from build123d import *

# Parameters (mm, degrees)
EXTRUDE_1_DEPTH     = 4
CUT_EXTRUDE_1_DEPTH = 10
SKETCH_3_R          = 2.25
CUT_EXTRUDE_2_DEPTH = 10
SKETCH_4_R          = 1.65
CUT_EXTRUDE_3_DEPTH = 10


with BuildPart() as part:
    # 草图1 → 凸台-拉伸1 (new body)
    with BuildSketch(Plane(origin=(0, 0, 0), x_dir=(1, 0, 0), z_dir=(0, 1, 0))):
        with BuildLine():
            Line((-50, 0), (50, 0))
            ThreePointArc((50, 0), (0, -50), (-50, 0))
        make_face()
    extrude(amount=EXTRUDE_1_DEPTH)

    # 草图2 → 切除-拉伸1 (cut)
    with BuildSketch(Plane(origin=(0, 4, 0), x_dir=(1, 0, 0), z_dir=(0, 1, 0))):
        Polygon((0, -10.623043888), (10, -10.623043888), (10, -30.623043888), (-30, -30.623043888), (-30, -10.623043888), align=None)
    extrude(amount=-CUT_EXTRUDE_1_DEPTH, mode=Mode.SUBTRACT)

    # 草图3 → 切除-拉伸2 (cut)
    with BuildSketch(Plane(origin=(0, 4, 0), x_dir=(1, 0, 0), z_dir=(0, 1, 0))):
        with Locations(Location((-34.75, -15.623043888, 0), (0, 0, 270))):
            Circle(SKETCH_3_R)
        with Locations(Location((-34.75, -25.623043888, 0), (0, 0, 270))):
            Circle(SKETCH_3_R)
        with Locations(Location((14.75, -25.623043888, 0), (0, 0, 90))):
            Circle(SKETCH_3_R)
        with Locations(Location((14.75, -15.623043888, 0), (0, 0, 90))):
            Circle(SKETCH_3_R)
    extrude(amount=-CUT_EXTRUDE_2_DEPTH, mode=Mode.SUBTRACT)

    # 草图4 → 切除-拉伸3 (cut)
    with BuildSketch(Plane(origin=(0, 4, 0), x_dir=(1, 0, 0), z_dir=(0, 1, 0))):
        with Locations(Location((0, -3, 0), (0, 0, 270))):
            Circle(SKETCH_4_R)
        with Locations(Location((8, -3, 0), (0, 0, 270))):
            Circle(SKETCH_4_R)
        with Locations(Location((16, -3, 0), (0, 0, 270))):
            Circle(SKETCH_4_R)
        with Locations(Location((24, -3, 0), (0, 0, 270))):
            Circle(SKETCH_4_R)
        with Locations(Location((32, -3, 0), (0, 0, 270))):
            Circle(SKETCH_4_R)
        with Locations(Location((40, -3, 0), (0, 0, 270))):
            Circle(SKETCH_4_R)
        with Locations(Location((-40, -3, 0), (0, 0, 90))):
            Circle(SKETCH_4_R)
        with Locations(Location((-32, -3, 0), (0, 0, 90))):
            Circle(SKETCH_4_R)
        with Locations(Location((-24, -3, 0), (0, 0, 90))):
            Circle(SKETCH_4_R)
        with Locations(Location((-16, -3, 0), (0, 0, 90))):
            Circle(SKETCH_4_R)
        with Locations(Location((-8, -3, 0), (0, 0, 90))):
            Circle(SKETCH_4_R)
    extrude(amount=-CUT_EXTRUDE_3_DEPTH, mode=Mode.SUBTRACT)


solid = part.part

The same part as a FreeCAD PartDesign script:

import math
import FreeCAD as App
import Part
import Sketcher
from FreeCAD import Vector


def add_polygon(sketch, points):
    """Adds a closed chain of lines whose ends are joined by coincident constraints."""
    first, n = sketch.GeometryCount, len(points)
    for a, b in zip(points, points[1:] + points[:1]):
        sketch.addGeometry(Part.LineSegment(App.Vector(*a, 0), App.Vector(*b, 0)), False)
    for i in range(n):
        sketch.addConstraint(Sketcher.Constraint("Coincident", first + i, 2, first + (i + 1) % n, 1))

doc = App.newDocument("Part")
body = doc.addObject("PartDesign::Body", "Body")

# Sketch on XZ plane
sketch1 = body.newObject("Sketcher::SketchObject", "Sketch")
sketch1.AttachmentSupport = (doc.getObject("XZ_Plane"), [""])
sketch1.MapMode = "FlatFace"
sketch1.addGeometry([
    Part.LineSegment(Vector(50, 0, 0), Vector(-50, 0, 0)),
    Part.ArcOfCircle(Part.Circle(Vector(0, 0, 0), Vector(0, 0, 1), 50), math.radians(0), math.radians(180)),
], False)
sketch1.addConstraint([
    Sketcher.Constraint("Coincident", 0, 1, 1, 1),
    Sketcher.Constraint("Coincident", 1, 2, 0, 2),
    Sketcher.Constraint("Horizontal", 0),
    Sketcher.Constraint("Coincident", 1, 3, -1, 1),
    Sketcher.Constraint("PointOnObject", 0, 1, -1),
    Sketcher.Constraint("Radius", 1, 50.0),
])
pad1 = body.newObject("PartDesign::Pad", "Pad")
pad1.Profile = sketch1
pad1.Length = 4
pad1.Reversed = True

# Sketch on XZ plane
sketch2 = body.newObject("Sketcher::SketchObject", "Sketch001")
sketch2.AttachmentSupport = (doc.getObject("XZ_Plane"), [""])
sketch2.MapMode = "FlatFace"
sketch2.AttachmentOffset = App.Placement(Vector(0, 0, -4), App.Rotation())
add_polygon(sketch2, [(10, 11), (-30, 11), (-30, 31), (10, 31)])  # lines 0-3
sketch2.addConstraint([
    Sketcher.Constraint("Horizontal", 0),
    Sketcher.Constraint("Vertical", 1),
    Sketcher.Constraint("Horizontal", 2),
    Sketcher.Constraint("Vertical", 3),
    Sketcher.Constraint("DistanceX", 0, 2, 0, 1, 40.0),
    Sketcher.Constraint("DistanceY", 1, 1, 1, 2, 20.0),
    Sketcher.Constraint("DistanceX", 0, 2, -1, 1, 30.0),
    Sketcher.Constraint("DistanceY", -1, 1, 0, 2, 10.623044),
])
pocket1 = body.newObject("PartDesign::Pocket", "Pocket")
pocket1.Profile = sketch2
pocket1.Length = 10
pocket1.Reversed = True

# Sketch on XZ plane
sketch3 = body.newObject("Sketcher::SketchObject", "Sketch002")
sketch3.AttachmentSupport = (doc.getObject("XZ_Plane"), [""])
sketch3.MapMode = "FlatFace"
sketch3.AttachmentOffset = App.Placement(Vector(0, 0, -4), App.Rotation())
sketch3.addGeometry([
    Part.Circle(Vector(-34.8, 15.6, 0), Vector(0, 0, 1), 2.2),
    Part.Circle(Vector(-34.8, 25.6, 0), Vector(0, 0, 1), 2.2),
    Part.Circle(Vector(14.8, 25.6, 0), Vector(0, 0, 1), 2.2),
    Part.Circle(Vector(14.8, 15.6, 0), Vector(0, 0, 1), 2.2),
], False)
sketch3.addConstraint([
    Sketcher.Constraint("Equal", 0, 1),
    Sketcher.Constraint("Equal", 1, 2),
    Sketcher.Constraint("Equal", 2, 3),
    Sketcher.Constraint("Horizontal", 1, 3, 2, 3),
    Sketcher.Constraint("Horizontal", 0, 3, 3, 3),
    Sketcher.Constraint("Vertical", 0, 3, 1, 3),
    Sketcher.Constraint("Vertical", 2, 3, 3, 3),
    Sketcher.Constraint("Diameter", 0, 4.5),
    Sketcher.Constraint("DistanceY", 0, 3, 1, 3, 10.0),
    Sketcher.Constraint("DistanceX", 1, 3, 2, 3, 49.5),
    Sketcher.Constraint("DistanceX", 0, 3, -1, 1, 34.75),
    Sketcher.Constraint("DistanceY", -1, 1, 0, 3, 15.623044),
])
pocket2 = body.newObject("PartDesign::Pocket", "Pocket001")
pocket2.Profile = sketch3
pocket2.Length = 10
pocket2.Reversed = True

# Sketch on XZ plane
sketch4 = body.newObject("Sketcher::SketchObject", "Sketch003")
sketch4.AttachmentSupport = (doc.getObject("XZ_Plane"), [""])
sketch4.MapMode = "FlatFace"
sketch4.AttachmentOffset = App.Placement(Vector(0, 0, -4), App.Rotation())
sketch4.addGeometry([
    Part.Circle(Vector(0, 3, 0), Vector(0, 0, 1), 1.6),  # 0
    Part.Circle(Vector(8, 3, 0), Vector(0, 0, 1), 1.6),  # 1
    Part.Circle(Vector(16, 3, 0), Vector(0, 0, 1), 1.6),  # 2
    Part.Circle(Vector(24, 3, 0), Vector(0, 0, 1), 1.6),  # 3
    Part.Circle(Vector(32, 3, 0), Vector(0, 0, 1), 1.6),  # 4
    Part.Circle(Vector(40, 3, 0), Vector(0, 0, 1), 1.6),  # 5
    Part.Circle(Vector(-40, 3, 0), Vector(0, 0, 1), 1.6),  # 6
    Part.Circle(Vector(-32, 3, 0), Vector(0, 0, 1), 1.6),  # 7
    Part.Circle(Vector(-24, 3, 0), Vector(0, 0, 1), 1.6),  # 8
    Part.Circle(Vector(-16, 3, 0), Vector(0, 0, 1), 1.6),  # 9
    Part.Circle(Vector(-8, 3, 0), Vector(0, 0, 1), 1.6),  # 10
], False)
sketch4.addConstraint([
    Sketcher.Constraint("Equal", 0, 1),
    Sketcher.Constraint("Equal", 1, 2),
    Sketcher.Constraint("Equal", 2, 3),
    Sketcher.Constraint("Equal", 3, 4),
    Sketcher.Constraint("Equal", 4, 5),
    Sketcher.Constraint("Equal", 5, 6),
    Sketcher.Constraint("Equal", 6, 7),
    Sketcher.Constraint("Equal", 7, 8),
    Sketcher.Constraint("Equal", 8, 9),
    Sketcher.Constraint("Equal", 9, 10),
    Sketcher.Constraint("Symmetric", 5, 3, 6, 3, -2),
    Sketcher.Constraint("Symmetric", 4, 3, 7, 3, -2),
    Sketcher.Constraint("Symmetric", 3, 3, 8, 3, -2),
    Sketcher.Constraint("Symmetric", 2, 3, 9, 3, -2),
    Sketcher.Constraint("Symmetric", 1, 3, 10, 3, -2),
    Sketcher.Constraint("PointOnObject", 0, 3, -2),
    Sketcher.Constraint("Horizontal", 0, 3, 1, 3),
    Sketcher.Constraint("Horizontal", 1, 3, 2, 3),
    Sketcher.Constraint("Horizontal", 2, 3, 3, 3),
    Sketcher.Constraint("Horizontal", 3, 3, 4, 3),
    Sketcher.Constraint("Horizontal", 4, 3, 5, 3),
    Sketcher.Constraint("Diameter", 0, 3.3),
    Sketcher.Constraint("DistanceY", -1, 1, 0, 3, 3.0),
    Sketcher.Constraint("DistanceX", -1, 1, 1, 3, 8.0),
    Sketcher.Constraint("DistanceX", -1, 1, 2, 3, 16.0),
    Sketcher.Constraint("DistanceX", -1, 1, 3, 3, 24.0),
    Sketcher.Constraint("DistanceX", -1, 1, 4, 3, 32.0),
    Sketcher.Constraint("DistanceX", -1, 1, 5, 3, 40.0),
])
pocket3 = body.newObject("PartDesign::Pocket", "Pocket002")
pocket3.Profile = sketch4
pocket3.Length = 10
pocket3.Reversed = True

doc.recompute()
